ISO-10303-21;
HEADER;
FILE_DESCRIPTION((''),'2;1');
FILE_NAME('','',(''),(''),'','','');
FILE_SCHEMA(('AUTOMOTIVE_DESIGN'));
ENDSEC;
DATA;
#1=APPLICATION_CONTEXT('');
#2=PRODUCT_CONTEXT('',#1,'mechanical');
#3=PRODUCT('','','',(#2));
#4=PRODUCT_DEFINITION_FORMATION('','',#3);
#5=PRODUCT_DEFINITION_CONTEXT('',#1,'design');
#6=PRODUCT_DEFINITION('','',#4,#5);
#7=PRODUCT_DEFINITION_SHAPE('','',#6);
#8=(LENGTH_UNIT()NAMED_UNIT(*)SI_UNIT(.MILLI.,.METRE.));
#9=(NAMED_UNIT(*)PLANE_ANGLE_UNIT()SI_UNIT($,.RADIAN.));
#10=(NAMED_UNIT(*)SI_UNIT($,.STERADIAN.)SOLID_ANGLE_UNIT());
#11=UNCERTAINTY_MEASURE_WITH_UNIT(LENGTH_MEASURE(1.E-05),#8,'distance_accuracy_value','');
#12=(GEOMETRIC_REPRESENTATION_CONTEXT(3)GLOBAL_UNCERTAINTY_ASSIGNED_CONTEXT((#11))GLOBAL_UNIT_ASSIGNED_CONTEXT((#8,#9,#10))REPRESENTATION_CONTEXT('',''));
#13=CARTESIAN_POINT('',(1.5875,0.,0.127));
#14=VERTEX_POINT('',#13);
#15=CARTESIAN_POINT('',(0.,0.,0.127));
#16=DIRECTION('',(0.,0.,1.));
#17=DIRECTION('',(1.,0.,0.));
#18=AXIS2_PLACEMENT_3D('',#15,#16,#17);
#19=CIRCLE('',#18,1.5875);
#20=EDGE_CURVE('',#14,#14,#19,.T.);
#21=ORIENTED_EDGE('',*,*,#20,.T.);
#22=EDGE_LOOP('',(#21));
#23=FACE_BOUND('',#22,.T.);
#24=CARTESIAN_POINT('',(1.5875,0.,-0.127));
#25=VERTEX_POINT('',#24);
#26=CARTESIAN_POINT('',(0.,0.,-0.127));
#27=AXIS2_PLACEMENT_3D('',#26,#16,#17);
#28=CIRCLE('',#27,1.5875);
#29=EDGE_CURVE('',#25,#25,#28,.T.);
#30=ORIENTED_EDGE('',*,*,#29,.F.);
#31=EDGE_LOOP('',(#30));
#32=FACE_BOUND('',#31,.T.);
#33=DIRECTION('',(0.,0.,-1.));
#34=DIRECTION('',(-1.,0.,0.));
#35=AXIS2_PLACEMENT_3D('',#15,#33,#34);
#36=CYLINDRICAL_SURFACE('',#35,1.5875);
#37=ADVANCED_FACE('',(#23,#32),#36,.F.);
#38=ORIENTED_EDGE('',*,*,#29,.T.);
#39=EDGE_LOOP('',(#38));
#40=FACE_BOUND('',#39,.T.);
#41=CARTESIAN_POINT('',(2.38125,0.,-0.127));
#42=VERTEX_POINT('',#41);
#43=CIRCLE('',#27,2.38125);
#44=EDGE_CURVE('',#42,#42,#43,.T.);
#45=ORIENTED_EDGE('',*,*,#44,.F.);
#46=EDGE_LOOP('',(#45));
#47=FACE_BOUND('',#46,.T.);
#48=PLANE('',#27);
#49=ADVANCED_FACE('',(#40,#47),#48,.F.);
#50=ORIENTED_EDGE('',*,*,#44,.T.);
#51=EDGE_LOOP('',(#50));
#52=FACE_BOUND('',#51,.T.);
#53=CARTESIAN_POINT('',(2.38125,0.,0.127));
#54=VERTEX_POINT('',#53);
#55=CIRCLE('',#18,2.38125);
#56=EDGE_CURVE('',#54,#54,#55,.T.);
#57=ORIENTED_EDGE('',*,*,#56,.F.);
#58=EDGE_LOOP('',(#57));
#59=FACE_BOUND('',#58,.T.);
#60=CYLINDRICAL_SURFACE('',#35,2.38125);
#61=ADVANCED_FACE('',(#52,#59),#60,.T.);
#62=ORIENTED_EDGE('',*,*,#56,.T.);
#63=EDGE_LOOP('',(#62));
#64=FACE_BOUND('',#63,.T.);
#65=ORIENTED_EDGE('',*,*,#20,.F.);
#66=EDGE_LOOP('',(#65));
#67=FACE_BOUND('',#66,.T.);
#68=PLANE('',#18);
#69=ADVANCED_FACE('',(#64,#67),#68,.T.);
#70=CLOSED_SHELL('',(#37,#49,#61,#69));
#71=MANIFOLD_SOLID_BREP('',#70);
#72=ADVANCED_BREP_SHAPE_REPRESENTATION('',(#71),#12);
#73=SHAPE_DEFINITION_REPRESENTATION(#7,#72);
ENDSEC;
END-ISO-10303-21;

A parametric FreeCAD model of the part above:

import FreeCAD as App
import Part
import Sketcher
from FreeCAD import Vector
Q = App.Units.Quantity

doc = App.newDocument("Part")
body = doc.addObject("PartDesign::Body", "Body")

# Sketch on XY plane
sketch1 = body.newObject("Sketcher::SketchObject", "Sketch")
sketch1.AttachmentSupport = (doc.getObject("XY_Plane"), [""])
sketch1.MapMode = "FlatFace"
sketch1.addGeometry(Part.Circle(Vector(0, 0, 0), Vector(0, 0, 1), 2.4), False)
sketch1.addGeometry(Part.Circle(Vector(0, 0, 0), Vector(0, 0, 1), 1.6), False)
sketch1.addConstraint(Sketcher.Constraint("Coincident", 0, 3, -1, 1))
sketch1.addConstraint(Sketcher.Constraint("Coincident", 1, 3, -1, 1))
sketch1.addConstraint(Sketcher.Constraint("Diameter", 0, Q("0.1875 in")))
sketch1.addConstraint(Sketcher.Constraint("Diameter", 1, Q("0.125 in")))
pad1 = body.newObject("PartDesign::Pad", "Pad")
pad1.Profile = sketch1
pad1.Length = Q("0.01 in")
pad1.Midplane = True

doc.recompute()
